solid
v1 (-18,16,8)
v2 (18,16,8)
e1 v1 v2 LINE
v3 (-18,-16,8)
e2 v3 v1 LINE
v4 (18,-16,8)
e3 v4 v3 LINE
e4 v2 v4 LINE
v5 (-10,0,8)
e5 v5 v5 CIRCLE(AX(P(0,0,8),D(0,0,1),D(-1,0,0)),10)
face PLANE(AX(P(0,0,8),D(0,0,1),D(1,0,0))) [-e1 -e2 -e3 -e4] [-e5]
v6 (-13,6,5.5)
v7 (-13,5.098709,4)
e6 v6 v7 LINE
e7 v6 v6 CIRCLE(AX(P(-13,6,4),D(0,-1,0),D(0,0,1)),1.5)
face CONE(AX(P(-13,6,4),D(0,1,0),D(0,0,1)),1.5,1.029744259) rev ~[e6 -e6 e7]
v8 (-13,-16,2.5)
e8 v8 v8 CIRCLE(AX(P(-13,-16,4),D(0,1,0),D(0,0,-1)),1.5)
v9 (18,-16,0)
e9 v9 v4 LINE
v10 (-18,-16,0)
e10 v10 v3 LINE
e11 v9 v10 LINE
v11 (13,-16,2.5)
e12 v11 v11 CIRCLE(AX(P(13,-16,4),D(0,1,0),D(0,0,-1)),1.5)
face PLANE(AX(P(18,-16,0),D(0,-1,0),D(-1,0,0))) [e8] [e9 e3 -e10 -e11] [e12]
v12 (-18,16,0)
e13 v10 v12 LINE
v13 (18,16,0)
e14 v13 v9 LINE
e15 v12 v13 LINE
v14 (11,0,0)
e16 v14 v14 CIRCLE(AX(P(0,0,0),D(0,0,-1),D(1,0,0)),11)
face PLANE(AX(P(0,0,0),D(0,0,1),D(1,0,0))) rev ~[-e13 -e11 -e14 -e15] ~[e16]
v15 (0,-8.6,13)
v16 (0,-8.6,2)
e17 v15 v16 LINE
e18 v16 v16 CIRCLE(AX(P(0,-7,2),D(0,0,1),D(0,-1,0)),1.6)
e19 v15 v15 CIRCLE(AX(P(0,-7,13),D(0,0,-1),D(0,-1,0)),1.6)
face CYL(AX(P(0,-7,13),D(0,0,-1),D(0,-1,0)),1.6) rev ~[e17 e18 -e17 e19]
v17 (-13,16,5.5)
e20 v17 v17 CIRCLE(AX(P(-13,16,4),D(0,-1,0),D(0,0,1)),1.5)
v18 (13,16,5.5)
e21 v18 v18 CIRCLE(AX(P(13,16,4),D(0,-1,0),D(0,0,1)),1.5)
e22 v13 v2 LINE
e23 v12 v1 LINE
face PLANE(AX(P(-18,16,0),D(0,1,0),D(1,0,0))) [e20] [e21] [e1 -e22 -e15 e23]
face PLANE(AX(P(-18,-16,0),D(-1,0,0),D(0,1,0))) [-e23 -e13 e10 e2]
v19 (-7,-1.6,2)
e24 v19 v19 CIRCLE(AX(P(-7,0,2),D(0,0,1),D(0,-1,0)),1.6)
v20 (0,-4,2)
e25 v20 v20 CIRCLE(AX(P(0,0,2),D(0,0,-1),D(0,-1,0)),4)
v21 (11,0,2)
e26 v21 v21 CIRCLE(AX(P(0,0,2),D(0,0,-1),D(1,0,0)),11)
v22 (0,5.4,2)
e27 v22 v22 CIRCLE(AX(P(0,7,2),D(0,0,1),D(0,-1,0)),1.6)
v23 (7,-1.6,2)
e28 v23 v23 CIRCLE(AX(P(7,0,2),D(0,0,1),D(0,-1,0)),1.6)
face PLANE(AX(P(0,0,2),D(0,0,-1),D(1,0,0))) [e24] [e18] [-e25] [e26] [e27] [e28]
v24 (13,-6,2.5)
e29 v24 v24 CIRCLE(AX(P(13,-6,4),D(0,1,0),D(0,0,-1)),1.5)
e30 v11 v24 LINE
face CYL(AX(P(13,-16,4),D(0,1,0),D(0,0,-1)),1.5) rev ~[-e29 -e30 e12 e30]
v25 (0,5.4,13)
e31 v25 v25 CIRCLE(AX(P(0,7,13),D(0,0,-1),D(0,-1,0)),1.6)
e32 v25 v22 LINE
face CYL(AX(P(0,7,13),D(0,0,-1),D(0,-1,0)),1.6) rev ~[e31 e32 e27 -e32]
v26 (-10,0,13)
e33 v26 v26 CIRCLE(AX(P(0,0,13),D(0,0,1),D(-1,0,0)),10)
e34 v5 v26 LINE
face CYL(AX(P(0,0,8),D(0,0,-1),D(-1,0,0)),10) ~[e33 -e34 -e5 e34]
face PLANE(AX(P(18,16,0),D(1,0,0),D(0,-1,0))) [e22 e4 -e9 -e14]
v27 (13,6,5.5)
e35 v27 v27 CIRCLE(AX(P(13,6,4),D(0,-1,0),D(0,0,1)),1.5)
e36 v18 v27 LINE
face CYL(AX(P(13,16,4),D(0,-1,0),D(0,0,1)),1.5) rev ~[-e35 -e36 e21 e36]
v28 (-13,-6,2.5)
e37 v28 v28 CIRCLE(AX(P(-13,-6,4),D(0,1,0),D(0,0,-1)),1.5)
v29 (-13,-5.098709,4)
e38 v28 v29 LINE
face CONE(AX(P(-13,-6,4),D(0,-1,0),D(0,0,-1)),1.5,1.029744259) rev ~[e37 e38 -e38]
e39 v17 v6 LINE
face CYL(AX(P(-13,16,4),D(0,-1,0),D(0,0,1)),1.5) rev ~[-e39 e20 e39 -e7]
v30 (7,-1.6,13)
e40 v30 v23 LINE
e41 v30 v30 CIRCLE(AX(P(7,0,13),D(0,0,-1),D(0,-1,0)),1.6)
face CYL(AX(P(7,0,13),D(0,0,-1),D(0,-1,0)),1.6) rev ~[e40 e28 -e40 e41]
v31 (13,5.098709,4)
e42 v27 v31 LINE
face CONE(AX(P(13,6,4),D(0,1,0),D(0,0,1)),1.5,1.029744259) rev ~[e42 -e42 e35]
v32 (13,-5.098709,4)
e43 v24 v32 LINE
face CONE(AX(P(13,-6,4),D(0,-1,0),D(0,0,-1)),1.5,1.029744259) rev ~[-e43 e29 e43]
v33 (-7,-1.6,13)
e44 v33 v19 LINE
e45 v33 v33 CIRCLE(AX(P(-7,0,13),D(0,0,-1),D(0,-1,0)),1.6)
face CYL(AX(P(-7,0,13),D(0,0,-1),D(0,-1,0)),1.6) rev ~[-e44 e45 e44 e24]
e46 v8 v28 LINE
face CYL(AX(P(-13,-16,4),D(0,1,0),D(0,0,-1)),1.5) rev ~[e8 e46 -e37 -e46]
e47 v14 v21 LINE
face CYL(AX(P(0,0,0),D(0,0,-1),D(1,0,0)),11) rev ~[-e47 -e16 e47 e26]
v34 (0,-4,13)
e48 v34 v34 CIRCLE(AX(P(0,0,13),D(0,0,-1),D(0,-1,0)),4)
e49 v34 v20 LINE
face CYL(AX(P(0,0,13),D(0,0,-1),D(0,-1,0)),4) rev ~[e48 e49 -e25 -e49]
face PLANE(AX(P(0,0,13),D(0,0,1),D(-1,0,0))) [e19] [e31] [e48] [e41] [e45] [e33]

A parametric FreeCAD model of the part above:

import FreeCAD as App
import Part
import Sketcher

V = App.Vector


def add_polygon(sketch, points):
    """Adds a closed chain of lines whose ends are joined by coincident constraints."""
    first, n = sketch.GeometryCount, len(points)
    for a, b in zip(points, points[1:] + points[:1]):
        sketch.addGeometry(Part.LineSegment(App.Vector(*a, 0), App.Vector(*b, 0)), False)
    for i in range(n):
        sketch.addConstraint(Sketcher.Constraint("Coincident", first + i, 2, first + (i + 1) % n, 1))

doc = App.newDocument("Part")
params = doc.addObject("Spreadsheet::Sheet", "Params")
for row, (alias, value) in enumerate([
    ("sketch1_height", "32 mm"),
    ("pad1_length", "8 mm"),
    ("sketch2_diameter", "20 mm"),
    ("pad2_length", "5 mm"),
    ("sketch3_diameter", "3.2 mm"),
    ("hole_diameter", "3.2 mm"),
    ("sketch4_diameter", "3 mm"),
    ("hole2_diameter", "3 mm"),
    ("hole2_depth", "10 mm"),
    ("sketch5_diameter", "3 mm"),
    ("hole3_diameter", "3 mm"),
    ("hole3_depth", "10 mm"),
    ("sketch6_diameter", "22 mm"),
    ("sketch6_diameter2", "3.2 mm"),
    ("pocket1_length", "2 mm"),
    ("sketch7_diameter", "8 mm"),
    ("hole4_diameter", "8 mm"),
], start=1):
    params.set(f"A{row}", alias)
    params.set(f"B{row}", "=" + value)
    params.setAlias(f"B{row}", alias)

body = doc.addObject("PartDesign::Body", "Body")

# Sketch on XY plane
sketch1 = body.newObject("Sketcher::SketchObject", "Sketch")
sketch1.AttachmentSupport = (doc.getObject("XY_Plane"), [""])
sketch1.MapMode = "FlatFace"
add_polygon(sketch1, [(18, 16), (-18, 16), (-18, -16), (18, -16)])  # lines 0-3
sketch1.addConstraint([
    Sketcher.Constraint("Horizontal", 0),
    Sketcher.Constraint("Vertical", 1),
    Sketcher.Constraint("Horizontal", 2),
    Sketcher.Constraint("Vertical", 3),
    Sketcher.Constraint("Symmetric", 0, 2, 2, 2, -1, 1),
    Sketcher.Constraint("DistanceY", 1, 2, 1, 1, 32.0),
    Sketcher.Constraint("DistanceX", 0, 2, -1, 1, 18.0),
])
sketch1.setExpression("Constraints[9]", "Params.sketch1_height")
pad1 = body.newObject("PartDesign::Pad", "Pad")
pad1.Profile = sketch1
pad1.setExpression("Length", "Params.pad1_length")

# Sketch on XY plane
sketch2 = body.newObject("Sketcher::SketchObject", "Sketch001")
sketch2.AttachmentSupport = (doc.getObject("XY_Plane"), [""])
sketch2.MapMode = "FlatFace"
sketch2.AttachmentOffset = App.Placement(V(0, 0, 8), App.Rotation())
sketch2.addGeometry(Part.Circle(V(0, 0, 0), V(0, 0, 1), 10), False)
sketch2.addConstraint([
    Sketcher.Constraint("Coincident", 0, 3, -1, 1),
    Sketcher.Constraint("Diameter", 0, 20.0),
])
sketch2.setExpression("Constraints[1]", "Params.sketch2_diameter")
pad2 = body.newObject("PartDesign::Pad", "Pad001")
pad2.Profile = sketch2
pad2.setExpression("Length", "Params.pad2_length")

# Sketch on XY plane
sketch3 = body.newObject("Sketcher::SketchObject", "Sketch002")
sketch3.AttachmentSupport = (doc.getObject("XY_Plane"), [""])
sketch3.MapMode = "FlatFace"
sketch3.AttachmentOffset = App.Placement(V(0, 0, 13), App.Rotation())
sketch3.addGeometry([
    Part.Circle(V(-7, 0, 0), V(0, 0, 1), 1.6),
    Part.Circle(V(0, 7, 0), V(0, 0, 1), 1.6),
    Part.Circle(V(7, 0, 0), V(0, 0, 1), 1.6),
    Part.Circle(V(0, -7, 0), V(0, 0, 1), 1.6),
], False)
sketch3.addConstraint([
    Sketcher.Constraint("Equal", 0, 1),
    Sketcher.Constraint("Equal", 1, 2),
    Sketcher.Constraint("Equal", 2, 3),
    Sketcher.Constraint("Symmetric", 0, 3, 2, 3, -1, 1),
    Sketcher.Constraint("Symmetric", 1, 3, 3, 3, -1, 1),
    Sketcher.Constraint("PointOnObject", 0, 3, -1),
    Sketcher.Constraint("PointOnObject", 1, 3, -2),
    Sketcher.Constraint("Diameter", 0, 3.2),
    Sketcher.Constraint("DistanceX", 0, 3, -1, 1, 7.0),
    Sketcher.Constraint("DistanceY", -1, 1, 1, 3, 7.0),
])
sketch3.setExpression("Constraints[7]", "Params.sketch3_diameter")
doc.recompute()
hole = body.newObject("PartDesign::Hole", "Hole")
hole.Profile = sketch3
hole.ThreadType = "None"
hole.setExpression("Diameter", "Params.hole_diameter")
hole.DepthType = "ThroughAll"

# Sketch on XZ plane
sketch4 = body.newObject("Sketcher::SketchObject", "Sketch003")
sketch4.AttachmentSupport = (doc.getObject("XZ_Plane"), [""])
sketch4.MapMode = "FlatFace"
sketch4.AttachmentOffset = App.Placement(V(0, 0, 16), App.Rotation())
sketch4.addGeometry([
    Part.Circle(V(-13, 4, 0), V(0, 0, 1), 1.5),
    Part.Circle(V(13, 4, 0), V(0, 0, 1), 1.5),
], False)
sketch4.addConstraint([
    Sketcher.Constraint("Equal", 0, 1),
    Sketcher.Constraint("Symmetric", 0, 3, 1, 3, -2),
    Sketcher.Constraint("Diameter", 0, 3.0),
    Sketcher.Constraint("DistanceX", 0, 3, -1, 1, 13.0),
    Sketcher.Constraint("DistanceY", -1, 1, 0, 3, 4.0),
])
sketch4.setExpression("Constraints[2]", "Params.sketch4_diameter")
doc.recompute()
hole2 = body.newObject("PartDesign::Hole", "Hole001")
hole2.Profile = sketch4
hole2.ThreadType = "None"
hole2.setExpression("Diameter", "Params.hole2_diameter")
hole2.DepthType = "Dimension"
hole2.setExpression("Depth", "Params.hole2_depth")
hole2.DrillPoint = "Angled"
hole2.DrillPointAngle = 118

# Sketch on XZ plane
sketch5 = body.newObject("Sketcher::SketchObject", "Sketch004")
sketch5.AttachmentSupport = (doc.getObject("XZ_Plane"), [""])
sketch5.MapMode = "FlatFace"
sketch5.AttachmentOffset = App.Placement(V(0, 0, -16), App.Rotation())
sketch5.addGeometry([
    Part.Circle(V(13, 4, 0), V(0, 0, 1), 1.5),
    Part.Circle(V(-13, 4, 0), V(0, 0, 1), 1.5),
], False)
sketch5.addConstraint([
    Sketcher.Constraint("Equal", 0, 1),
    Sketcher.Constraint("Symmetric", 0, 3, 1, 3, -2),
    Sketcher.Constraint("Diameter", 0, 3.0),
    Sketcher.Constraint("DistanceX", -1, 1, 0, 3, 13.0),
    Sketcher.Constraint("DistanceY", -1, 1, 0, 3, 4.0),
])
sketch5.setExpression("Constraints[2]", "Params.sketch5_diameter")
doc.recompute()
hole3 = body.newObject("PartDesign::Hole", "Hole002")
hole3.Profile = sketch5
hole3.ThreadType = "None"
hole3.setExpression("Diameter", "Params.hole3_diameter")
hole3.DepthType = "Dimension"
hole3.setExpression("Depth", "Params.hole3_depth")
hole3.DrillPoint = "Angled"
hole3.DrillPointAngle = 118
hole3.Reversed = True

# Sketch on XY plane
sketch6 = body.newObject("Sketcher::SketchObject", "Sketch005")
sketch6.AttachmentSupport = (doc.getObject("XY_Plane"), [""])
sketch6.MapMode = "FlatFace"
sketch6.addGeometry([
    Part.Circle(V(0, 0, 0), V(0, 0, 1), 11),  # 0
    Part.Circle(V(0, 7, 0), V(0, 0, 1), 1.6),  # 1
    Part.Circle(V(-7, 0, 0), V(0, 0, 1), 1.6),  # 2
    Part.Circle(V(7, 0, 0), V(0, 0, 1), 1.6),  # 3
    Part.Circle(V(0, -7, 0), V(0, 0, 1), 1.6),  # 4
], False)
sketch6.addConstraint([
    Sketcher.Constraint("Coincident", 0, 3, -1, 1),
    Sketcher.Constraint("Equal", 1, 2),
    Sketcher.Constraint("Equal", 2, 3),
    Sketcher.Constraint("Equal", 3, 4),
    Sketcher.Constraint("Symmetric", 2, 3, 3, 3, -1, 1),
    Sketcher.Constraint("Symmetric", 1, 3, 4, 3, -1, 1),
    Sketcher.Constraint("PointOnObject", 1, 3, -2),
    Sketcher.Constraint("PointOnObject", 2, 3, -1),
    Sketcher.Constraint("Diameter", 0, 22.0),
    Sketcher.Constraint("Diameter", 1, 3.2),
    Sketcher.Constraint("DistanceY", -1, 1, 1, 3, 7.0),
    Sketcher.Constraint("DistanceX", 2, 3, -1, 1, 7.0),
])
sketch6.setExpression("Constraints[8]", "Params.sketch6_diameter")
sketch6.setExpression("Constraints[9]", "Params.sketch6_diameter2")
pocket1 = body.newObject("PartDesign::Pocket", "Pocket")
pocket1.Profile = sketch6
pocket1.setExpression("Length", "Params.pocket1_length")
pocket1.Reversed = True

# Sketch on XY plane
sketch7 = body.newObject("Sketcher::SketchObject", "Sketch006")
sketch7.AttachmentSupport = (doc.getObject("XY_Plane"), [""])
sketch7.MapMode = "FlatFace"
sketch7.AttachmentOffset = App.Placement(V(0, 0, 13), App.Rotation())
sketch7.addGeometry(Part.Circle(V(0, 0, 0), V(0, 0, 1), 4), False)
sketch7.addConstraint([
    Sketcher.Constraint("Coincident", 0, 3, -1, 1),
    Sketcher.Constraint("Diameter", 0, 8.0),
])
sketch7.setExpression("Constraints[1]", "Params.sketch7_diameter")
doc.recompute()
hole4 = body.newObject("PartDesign::Hole", "Hole003")
hole4.Profile = sketch7
hole4.ThreadType = "None"
hole4.setExpression("Diameter", "Params.hole4_diameter")
hole4.DepthType = "ThroughAll"

doc.recompute()
